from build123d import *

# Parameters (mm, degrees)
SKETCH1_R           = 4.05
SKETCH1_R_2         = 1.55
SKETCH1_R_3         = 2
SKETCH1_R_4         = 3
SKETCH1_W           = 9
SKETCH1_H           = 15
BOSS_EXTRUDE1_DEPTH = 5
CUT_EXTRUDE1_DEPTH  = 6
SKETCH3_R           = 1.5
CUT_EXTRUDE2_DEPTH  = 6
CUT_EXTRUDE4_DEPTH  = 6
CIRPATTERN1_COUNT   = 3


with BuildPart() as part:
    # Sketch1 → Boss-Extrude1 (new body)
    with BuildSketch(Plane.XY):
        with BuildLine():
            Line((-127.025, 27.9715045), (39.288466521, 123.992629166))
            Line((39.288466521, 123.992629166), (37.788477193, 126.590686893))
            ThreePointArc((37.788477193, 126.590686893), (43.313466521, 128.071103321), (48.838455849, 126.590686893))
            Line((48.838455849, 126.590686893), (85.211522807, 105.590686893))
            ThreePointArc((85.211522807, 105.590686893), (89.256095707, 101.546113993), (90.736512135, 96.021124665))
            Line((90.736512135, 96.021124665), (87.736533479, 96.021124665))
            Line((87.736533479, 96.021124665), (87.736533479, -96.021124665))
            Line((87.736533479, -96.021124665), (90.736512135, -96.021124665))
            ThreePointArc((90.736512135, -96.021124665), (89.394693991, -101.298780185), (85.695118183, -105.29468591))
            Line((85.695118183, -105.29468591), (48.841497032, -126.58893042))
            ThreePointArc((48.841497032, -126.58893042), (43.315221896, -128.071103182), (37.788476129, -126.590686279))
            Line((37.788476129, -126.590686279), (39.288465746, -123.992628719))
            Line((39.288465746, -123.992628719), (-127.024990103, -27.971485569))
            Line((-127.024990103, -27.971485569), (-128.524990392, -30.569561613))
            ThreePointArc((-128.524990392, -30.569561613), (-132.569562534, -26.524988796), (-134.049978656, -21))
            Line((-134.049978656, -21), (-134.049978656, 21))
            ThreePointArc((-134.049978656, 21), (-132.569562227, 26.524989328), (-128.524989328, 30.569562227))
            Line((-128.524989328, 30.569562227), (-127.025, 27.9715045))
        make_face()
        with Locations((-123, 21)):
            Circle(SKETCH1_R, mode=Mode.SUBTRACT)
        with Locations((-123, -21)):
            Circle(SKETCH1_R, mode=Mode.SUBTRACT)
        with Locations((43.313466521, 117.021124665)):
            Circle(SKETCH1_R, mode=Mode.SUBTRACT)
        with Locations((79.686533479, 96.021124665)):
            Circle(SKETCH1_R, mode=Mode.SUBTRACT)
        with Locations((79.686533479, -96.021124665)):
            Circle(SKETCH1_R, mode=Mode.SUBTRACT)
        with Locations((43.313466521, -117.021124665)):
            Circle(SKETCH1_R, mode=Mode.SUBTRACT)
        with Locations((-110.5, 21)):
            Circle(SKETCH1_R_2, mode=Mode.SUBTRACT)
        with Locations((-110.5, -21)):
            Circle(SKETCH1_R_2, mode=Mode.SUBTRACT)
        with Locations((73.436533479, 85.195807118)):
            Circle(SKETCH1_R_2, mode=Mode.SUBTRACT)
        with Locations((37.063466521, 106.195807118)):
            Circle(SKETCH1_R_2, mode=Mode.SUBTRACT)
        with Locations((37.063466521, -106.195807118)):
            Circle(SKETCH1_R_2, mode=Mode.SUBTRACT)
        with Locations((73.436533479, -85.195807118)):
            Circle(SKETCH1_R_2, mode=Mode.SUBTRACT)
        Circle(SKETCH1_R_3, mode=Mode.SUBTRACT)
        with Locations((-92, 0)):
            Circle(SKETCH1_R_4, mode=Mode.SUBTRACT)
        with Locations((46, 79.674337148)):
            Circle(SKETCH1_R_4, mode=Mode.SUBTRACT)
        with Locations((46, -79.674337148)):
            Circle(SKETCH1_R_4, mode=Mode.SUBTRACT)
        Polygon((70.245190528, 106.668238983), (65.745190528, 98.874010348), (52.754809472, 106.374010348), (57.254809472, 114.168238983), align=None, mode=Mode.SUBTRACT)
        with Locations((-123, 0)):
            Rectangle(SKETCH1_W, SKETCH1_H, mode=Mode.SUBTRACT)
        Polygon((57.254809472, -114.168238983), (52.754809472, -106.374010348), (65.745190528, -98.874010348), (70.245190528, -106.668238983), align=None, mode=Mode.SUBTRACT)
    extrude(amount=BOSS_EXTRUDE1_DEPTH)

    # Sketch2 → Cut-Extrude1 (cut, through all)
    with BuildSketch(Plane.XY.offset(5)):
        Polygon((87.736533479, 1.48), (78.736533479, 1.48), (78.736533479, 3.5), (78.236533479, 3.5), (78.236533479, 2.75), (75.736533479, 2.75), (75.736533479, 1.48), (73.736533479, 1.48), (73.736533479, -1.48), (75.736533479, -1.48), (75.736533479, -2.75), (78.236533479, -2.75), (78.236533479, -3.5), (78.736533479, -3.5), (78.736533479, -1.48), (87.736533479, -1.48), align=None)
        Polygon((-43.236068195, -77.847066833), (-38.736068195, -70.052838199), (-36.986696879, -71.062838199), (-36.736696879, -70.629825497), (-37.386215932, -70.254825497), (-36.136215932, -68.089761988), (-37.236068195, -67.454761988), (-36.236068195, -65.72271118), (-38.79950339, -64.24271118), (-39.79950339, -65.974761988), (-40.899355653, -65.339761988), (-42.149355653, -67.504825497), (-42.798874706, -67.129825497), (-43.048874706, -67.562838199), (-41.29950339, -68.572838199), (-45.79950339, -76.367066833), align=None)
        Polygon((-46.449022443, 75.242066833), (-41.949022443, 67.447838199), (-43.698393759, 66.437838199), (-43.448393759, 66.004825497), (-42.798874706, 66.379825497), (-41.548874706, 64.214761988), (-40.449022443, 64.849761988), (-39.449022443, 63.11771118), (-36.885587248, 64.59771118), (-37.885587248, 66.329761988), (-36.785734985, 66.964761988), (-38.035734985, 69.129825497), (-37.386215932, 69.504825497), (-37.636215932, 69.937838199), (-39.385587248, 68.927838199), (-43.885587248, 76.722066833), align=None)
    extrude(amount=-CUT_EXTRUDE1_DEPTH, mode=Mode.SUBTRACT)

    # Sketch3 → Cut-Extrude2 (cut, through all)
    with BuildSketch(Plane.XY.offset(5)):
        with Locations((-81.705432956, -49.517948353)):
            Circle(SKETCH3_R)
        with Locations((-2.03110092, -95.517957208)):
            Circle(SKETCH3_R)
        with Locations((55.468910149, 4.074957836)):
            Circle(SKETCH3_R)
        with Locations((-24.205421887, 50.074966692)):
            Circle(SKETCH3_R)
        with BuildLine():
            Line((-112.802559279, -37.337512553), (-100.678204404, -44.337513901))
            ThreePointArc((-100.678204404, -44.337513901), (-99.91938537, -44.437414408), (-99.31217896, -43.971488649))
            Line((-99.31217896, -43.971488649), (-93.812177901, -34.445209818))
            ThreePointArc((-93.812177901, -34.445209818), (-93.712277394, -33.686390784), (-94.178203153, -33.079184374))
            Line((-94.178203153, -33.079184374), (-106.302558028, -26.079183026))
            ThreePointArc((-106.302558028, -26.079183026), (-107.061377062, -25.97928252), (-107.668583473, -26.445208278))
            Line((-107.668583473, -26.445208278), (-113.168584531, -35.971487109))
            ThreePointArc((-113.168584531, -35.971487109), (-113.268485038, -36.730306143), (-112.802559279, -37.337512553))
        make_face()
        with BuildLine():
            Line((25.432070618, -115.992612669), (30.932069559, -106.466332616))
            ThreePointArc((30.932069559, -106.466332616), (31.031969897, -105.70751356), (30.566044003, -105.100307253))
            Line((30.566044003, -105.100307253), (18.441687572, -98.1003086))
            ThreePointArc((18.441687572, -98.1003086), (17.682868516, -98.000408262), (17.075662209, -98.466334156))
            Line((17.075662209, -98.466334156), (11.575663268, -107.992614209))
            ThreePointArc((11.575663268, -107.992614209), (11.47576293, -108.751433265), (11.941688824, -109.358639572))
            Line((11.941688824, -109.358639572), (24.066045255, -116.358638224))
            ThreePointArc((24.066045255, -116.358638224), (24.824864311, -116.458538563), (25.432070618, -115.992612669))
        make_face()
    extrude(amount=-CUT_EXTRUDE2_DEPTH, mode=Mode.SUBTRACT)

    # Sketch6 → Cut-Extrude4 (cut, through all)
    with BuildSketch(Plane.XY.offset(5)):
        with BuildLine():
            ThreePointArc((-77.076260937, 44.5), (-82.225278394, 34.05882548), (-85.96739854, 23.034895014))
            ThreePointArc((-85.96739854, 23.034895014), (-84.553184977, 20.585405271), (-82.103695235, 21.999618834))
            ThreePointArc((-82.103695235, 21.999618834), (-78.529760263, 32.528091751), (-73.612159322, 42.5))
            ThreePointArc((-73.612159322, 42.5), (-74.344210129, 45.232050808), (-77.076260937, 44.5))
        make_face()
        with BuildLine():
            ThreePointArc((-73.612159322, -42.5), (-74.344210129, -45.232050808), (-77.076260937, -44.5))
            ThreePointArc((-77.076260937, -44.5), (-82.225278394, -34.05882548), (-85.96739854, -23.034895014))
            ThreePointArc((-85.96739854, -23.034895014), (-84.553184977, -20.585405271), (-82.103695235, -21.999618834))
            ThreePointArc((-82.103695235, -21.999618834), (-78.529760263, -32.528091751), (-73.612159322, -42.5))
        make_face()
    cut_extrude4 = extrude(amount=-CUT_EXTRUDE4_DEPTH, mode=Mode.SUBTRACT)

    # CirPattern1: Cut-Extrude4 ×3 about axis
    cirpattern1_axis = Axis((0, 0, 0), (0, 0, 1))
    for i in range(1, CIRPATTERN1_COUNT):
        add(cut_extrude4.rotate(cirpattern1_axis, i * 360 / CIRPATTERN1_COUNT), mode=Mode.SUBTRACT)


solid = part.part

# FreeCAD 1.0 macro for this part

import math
import FreeCAD as App
import Part
import Sketcher
from FreeCAD import Vector
Q = App.Units.Quantity

doc = App.newDocument("Part")
body = doc.addObject("PartDesign::Body", "Body")

# Sketch on XY plane
sketch1 = body.newObject("Sketcher::SketchObject", "Sketch")
sketch1.AttachmentSupport = (doc.getObject("XY_Plane"), [""])
sketch1.MapMode = "FlatFace"
sketch1.addGeometry(Part.LineSegment(Vector(39.288467, 123.992629, 0), Vector(-127.025, 27.971505, 0)), False)
sketch1.addGeometry(Part.LineSegment(Vector(-127.025, 27.971505, 0), Vector(-128.524989, 30.569562, 0)), False)
sketch1.addGeometry(Part.ArcOfCircle(Part.Circle(Vector(-123, 21, 0), Vector(0, 0, 1), 11.049979), math.radians(120), math.radians(180)), False)
sketch1.addGeometry(Part.LineSegment(Vector(-134.049979, 21, 0), Vector(-134.049979, -21, 0)), False)
sketch1.addGeometry(Part.ArcOfCircle(Part.Circle(Vector(-123, -21, 0), Vector(0, 0, 1), 11.049979), math.radians(-180), math.radians(-120.000006)), False)
sketch1.addGeometry(Part.LineSegment(Vector(-128.52499, -30.569562, 0), Vector(-127.02499, -27.971486, 0)), False)
sketch1.addGeometry(Part.LineSegment(Vector(-127.02499, -27.971486, 0), Vector(39.288466, -123.992629, 0)), False)
sketch1.addGeometry(Part.LineSegment(Vector(39.288466, -123.992629, 0), Vector(37.788476, -126.590686, 0)), False)
sketch1.addGeometry(Part.ArcOfCircle(Part.Circle(Vector(43.313467, -117.021125, 0), Vector(0, 0, 1), 11.049979), math.radians(-120.000006), math.radians(-59.98179)), False)
sketch1.addGeometry(Part.LineSegment(Vector(48.841497, -126.58893, 0), Vector(85.695118, -105.294686, 0)), False)
sketch1.addGeometry(Part.ArcOfCircle(Part.Circle(Vector(79.686533, -96.021125, 0), Vector(0, 0, 1), 11.049979), math.radians(-57.059734), math.radians(0)), False)
sketch1.addGeometry(Part.LineSegment(Vector(90.736512, -96.021125, 0), Vector(87.736533, -96.021125, 0)), False)
sketch1.addGeometry(Part.LineSegment(Vector(87.736533, -96.021125, 0), Vector(87.736533, 96.021125, 0)), False)
sketch1.addGeometry(Part.LineSegment(Vector(87.736533, 96.021125, 0), Vector(90.736512, 96.021125, 0)), False)
sketch1.addGeometry(Part.ArcOfCircle(Part.Circle(Vector(79.686533, 96.021125, 0), Vector(0, 0, 1), 11.049979), math.radians(0), math.radians(60)), False)
sketch1.addGeometry(Part.LineSegment(Vector(85.211523, 105.590687, 0), Vector(48.838456, 126.590687, 0)), False)
sketch1.addGeometry(Part.ArcOfCircle(Part.Circle(Vector(43.313467, 117.021125, 0), Vector(0, 0, 1), 11.049979), math.radians(60), math.radians(120)), False)
sketch1.addGeometry(Part.LineSegment(Vector(37.788477, 126.590687, 0), Vector(39.288467, 123.992629, 0)), False)
sketch1.addGeometry(Part.LineSegment(Vector(57.254809, -114.168239, 0), Vector(52.754809, -106.37401, 0)), False)
sketch1.addGeometry(Part.LineSegment(Vector(52.754809, -106.37401, 0), Vector(65.745191, -98.87401, 0)), False)
sketch1.addGeometry(Part.LineSegment(Vector(65.745191, -98.87401, 0), Vector(70.245191, -106.668239, 0)), False)
sketch1.addGeometry(Part.LineSegment(Vector(70.245191, -106.668239, 0), Vector(57.254809, -114.168239, 0)), False)
sketch1.addGeometry(Part.Circle(Vector(79.686533, -96.021125, 0), Vector(0, 0, 1), 4.05), False)
sketch1.addGeometry(Part.Circle(Vector(43.313467, -117.021125, 0), Vector(0, 0, 1), 4.05), False)
sketch1.addGeometry(Part.Circle(Vector(37.063467, -106.195807, 0), Vector(0, 0, 1), 1.55), False)
sketch1.addGeometry(Part.Circle(Vector(73.436533, -85.195807, 0), Vector(0, 0, 1), 1.55), False)
sketch1.addGeometry(Part.Circle(Vector(46, -79.674337, 0), Vector(0, 0, 1), 3), False)
sketch1.addGeometry(Part.Circle(Vector(0, 0, 0), Vector(0, 0, 1), 2), False)
sketch1.addGeometry(Part.Circle(Vector(-92, 0, 0), Vector(0, 0, 1), 3), False)
sketch1.addGeometry(Part.Circle(Vector(-110.5, -21, 0), Vector(0, 0, 1), 1.55), False)
sketch1.addGeometry(Part.Circle(Vector(-123, -21, 0), Vector(0, 0, 1), 4.05), False)
sketch1.addGeometry(Part.LineSegment(Vector(-127.5, -7.5, 0), Vector(-127.5, 7.5, 0)), False)
sketch1.addGeometry(Part.LineSegment(Vector(-127.5, 7.5, 0), Vector(-118.5, 7.5, 0)), False)
sketch1.addGeometry(Part.LineSegment(Vector(-118.5, 7.5, 0), Vector(-118.5, -7.5, 0)), False)
sketch1.addGeometry(Part.LineSegment(Vector(-118.5, -7.5, 0), Vector(-127.5, -7.5, 0)), False)
sketch1.addGeometry(Part.Circle(Vector(73.436533, 85.195807, 0), Vector(0, 0, 1), 1.55), False)
sketch1.addGeometry(Part.Circle(Vector(46, 79.674337, 0), Vector(0, 0, 1), 3), False)
sketch1.addGeometry(Part.Circle(Vector(79.686533, 96.021125, 0), Vector(0, 0, 1), 4.05), False)
sketch1.addGeometry(Part.LineSegment(Vector(70.245191, 106.668239, 0), Vector(65.745191, 98.87401, 0)), False)
sketch1.addGeometry(Part.LineSegment(Vector(65.745191, 98.87401, 0), Vector(52.754809, 106.37401, 0)), False)
sketch1.addGeometry(Part.LineSegment(Vector(52.754809, 106.37401, 0), Vector(57.254809, 114.168239, 0)), False)
sketch1.addGeometry(Part.LineSegment(Vector(57.254809, 114.168239, 0), Vector(70.245191, 106.668239, 0)), False)
sketch1.addGeometry(Part.Circle(Vector(37.063467, 106.195807, 0), Vector(0, 0, 1), 1.55), False)
sketch1.addGeometry(Part.Circle(Vector(43.313467, 117.021125, 0), Vector(0, 0, 1), 4.05), False)
sketch1.addGeometry(Part.Circle(Vector(-110.5, 21, 0), Vector(0, 0, 1), 1.55), False)
sketch1.addGeometry(Part.Circle(Vector(-123, 21, 0), Vector(0, 0, 1), 4.05), False)
sketch1.addConstraint(Sketcher.Constraint("Coincident", 0, 2, 1, 1))
sketch1.addConstraint(Sketcher.Constraint("Coincident", 1, 2, 2, 1))
sketch1.addConstraint(Sketcher.Constraint("Coincident", 2, 2, 3, 1))
sketch1.addConstraint(Sketcher.Constraint("Coincident", 3, 2, 4, 1))
sketch1.addConstraint(Sketcher.Constraint("Coincident", 4, 2, 5, 1))
sketch1.addConstraint(Sketcher.Constraint("Coincident", 5, 2, 6, 1))
sketch1.addConstraint(Sketcher.Constraint("Coincident", 6, 2, 7, 1))
sketch1.addConstraint(Sketcher.Constraint("Coincident", 7, 2, 8, 1))
sketch1.addConstraint(Sketcher.Constraint("Coincident", 8, 2, 9, 1))
sketch1.addConstraint(Sketcher.Constraint("Coincident", 9, 2, 10, 1))
sketch1.addConstraint(Sketcher.Constraint("Coincident", 10, 2, 11, 1))
sketch1.addConstraint(Sketcher.Constraint("Coincident", 11, 2, 12, 1))
sketch1.addConstraint(Sketcher.Constraint("Coincident", 12, 2, 13, 1))
sketch1.addConstraint(Sketcher.Constraint("Coincident", 13, 2, 14, 1))
sketch1.addConstraint(Sketcher.Constraint("Coincident", 14, 2, 15, 1))
sketch1.addConstraint(Sketcher.Constraint("Coincident", 15, 2, 16, 1))
sketch1.addConstraint(Sketcher.Constraint("Coincident", 16, 2, 17, 1))
sketch1.addConstraint(Sketcher.Constraint("Coincident", 17, 2, 0, 1))
sketch1.addConstraint(Sketcher.Constraint("Coincident", 18, 2, 19, 1))
sketch1.addConstraint(Sketcher.Constraint("Coincident", 19, 2, 20, 1))
sketch1.addConstraint(Sketcher.Constraint("Coincident", 20, 2, 21, 1))
sketch1.addConstraint(Sketcher.Constraint("Coincident", 21, 2, 18, 1))
sketch1.addConstraint(Sketcher.Constraint("Coincident", 31, 2, 32, 1))
sketch1.addConstraint(Sketcher.Constraint("Coincident", 32, 2, 33, 1))
sketch1.addConstraint(Sketcher.Constraint("Coincident", 33, 2, 34, 1))
sketch1.addConstraint(Sketcher.Constraint("Coincident", 34, 2, 31, 1))
sketch1.addConstraint(Sketcher.Constraint("Coincident", 38, 2, 39, 1))
sketch1.addConstraint(Sketcher.Constraint("Coincident", 39, 2, 40, 1))
sketch1.addConstraint(Sketcher.Constraint("Coincident", 40, 2, 41, 1))
sketch1.addConstraint(Sketcher.Constraint("Coincident", 41, 2, 38, 1))
sketch1.addConstraint(Sketcher.Constraint("Vertical", 3))
sketch1.addConstraint(Sketcher.Constraint("Horizontal", 11))
sketch1.addConstraint(Sketcher.Constraint("Vertical", 12))
sketch1.addConstraint(Sketcher.Constraint("Horizontal", 13))
sketch1.addConstraint(Sketcher.Constraint("Vertical", 31))
sketch1.addConstraint(Sketcher.Constraint("Horizontal", 32))
sketch1.addConstraint(Sketcher.Constraint("Vertical", 33))
sketch1.addConstraint(Sketcher.Constraint("Horizontal", 34))
sketch1.addConstraint(Sketcher.Constraint("Coincident", 27, 3, -1, 1))
sketch1.addConstraint(Sketcher.Constraint("Coincident", 22, 3, 10, 3))
sketch1.addConstraint(Sketcher.Constraint("Coincident", 23, 3, 8, 3))
sketch1.addConstraint(Sketcher.Constraint("Coincident", 30, 3, 4, 3))
sketch1.addConstraint(Sketcher.Constraint("Coincident", 37, 3, 14, 3))
sketch1.addConstraint(Sketcher.Constraint("Coincident", 43, 3, 16, 3))
sketch1.addConstraint(Sketcher.Constraint("Coincident", 45, 3, 2, 3))
sketch1.addConstraint(Sketcher.Constraint("PointOnObject", 28, 3, -1))
sketch1.addConstraint(Sketcher.Constraint("Diameter", 26, 6.0))
sketch1.addConstraint(Sketcher.Constraint("Diameter", 27, 4.0))
sketch1.addConstraint(Sketcher.Constraint("Diameter", 28, 6.0))
sketch1.addConstraint(Sketcher.Constraint("Diameter", 36, 6.0))
sketch1.addConstraint(Sketcher.Constraint("Diameter", 22, 8.1))
sketch1.addConstraint(Sketcher.Constraint("Diameter", 23, 8.1))
sketch1.addConstraint(Sketcher.Constraint("Diameter", 24, 3.1))
sketch1.addConstraint(Sketcher.Constraint("Diameter", 25, 3.1))
sketch1.addConstraint(Sketcher.Constraint("Diameter", 29, 3.1))
sketch1.addConstraint(Sketcher.Constraint("Diameter", 30, 8.1))
sketch1.addConstraint(Sketcher.Constraint("Diameter", 35, 3.1))
sketch1.addConstraint(Sketcher.Constraint("Diameter", 37, 8.1))
sketch1.addConstraint(Sketcher.Constraint("Diameter", 42, 3.1))
sketch1.addConstraint(Sketcher.Constraint("Diameter", 43, 8.1))
sketch1.addConstraint(Sketcher.Constraint("Diameter", 44, 3.1))
sketch1.addConstraint(Sketcher.Constraint("Diameter", 45, 8.1))
sketch1.addConstraint(Sketcher.Constraint("DistanceX", 32, 1, 32, 2, 9.0))
sketch1.addConstraint(Sketcher.Constraint("DistanceY", 3, 2, 3, 1, 42.0))
sketch1.addConstraint(Sketcher.Constraint("DistanceY", 31, 1, 31, 2, 15.0))
sketch1.addConstraint(Sketcher.Constraint("Distance", 5, 3.0))
sketch1.addConstraint(Sketcher.Constraint("Distance", 15, 42.0))
sketch1.addConstraint(Sketcher.Constraint("Distance", 18, 9.0))
sketch1.addConstraint(Sketcher.Constraint("Distance", 19, 15.0))
sketch1.addConstraint(Sketcher.Constraint("Distance", 20, 9.0))
sketch1.addConstraint(Sketcher.Constraint("Distance", 21, 15.0))
sketch1.addConstraint(Sketcher.Constraint("Distance", 38, 9.0))
sketch1.addConstraint(Sketcher.Constraint("Distance", 39, 15.0))
sketch1.addConstraint(Sketcher.Constraint("Distance", 40, 9.0))
sketch1.addConstraint(Sketcher.Constraint("Distance", 41, 15.0))
sketch1.addConstraint(Sketcher.Constraint("DistanceX", 2, 3, -1, 1, 123.0))
sketch1.addConstraint(Sketcher.Constraint("DistanceY", -1, 1, 2, 3, 21.0))
sketch1.addConstraint(Sketcher.Constraint("DistanceX", 4, 3, -1, 1, 123.0))
sketch1.addConstraint(Sketcher.Constraint("DistanceY", 4, 3, -1, 1, 21.0))
sketch1.addConstraint(Sketcher.Constraint("DistanceX", -1, 1, 26, 3, 46.0))
sketch1.addConstraint(Sketcher.Constraint("DistanceX", 28, 3, -1, 1, 92.0))
sketch1.addConstraint(Sketcher.Constraint("DistanceY", 29, 3, -1, 1, 21.0))
sketch1.addConstraint(Sketcher.Constraint("DistanceX", -1, 1, 36, 3, 46.0))
sketch1.addConstraint(Sketcher.Constraint("DistanceY", -1, 1, 44, 3, 21.0))
sketch1.addConstraint(Sketcher.Constraint("DistanceY", -1, 1, 2, 2, 21.0))
sketch1.addConstraint(Sketcher.Constraint("DistanceY", 8, 3, 10, 3, 21.0))
sketch1.addConstraint(Sketcher.Constraint("DistanceY", 14, 3, 16, 3, 21.0))
sketch1.addConstraint(Sketcher.Constraint("DistanceY", 24, 3, 25, 3, 21.0))
sketch1.addConstraint(Sketcher.Constraint("DistanceY", 35, 3, 42, 3, 21.0))
sketch1.addConstraint(Sketcher.Constraint("DistanceY", 12, 2, 16, 3, 21.0))
sketch1.addConstraint(Sketcher.Constraint("DistanceY", 14, 2, 15, 2, 21.0))
sketch1.addConstraint(Sketcher.Constraint("DistanceX", 31, 2, 44, 3, 17.0))
sketch1.addConstraint(Sketcher.Constraint("DistanceX", 33, 2, 29, 3, 8.0))
sketch1.addConstraint(Sketcher.Constraint("DistanceX", 29, 3, -1, 1, 110.5))
sketch1.addConstraint(Sketcher.Constraint("DistanceY", -1, 1, 31, 2, 7.5))
sketch1.addConstraint(Sketcher.Constraint("DistanceX", 4, 2, 5, 2, 1.5))
sketch1.addConstraint(Sketcher.Constraint("DistanceX", 25, 3, 11, 2, 14.3))
sketch1.addConstraint(Sketcher.Constraint("DistanceX", 35, 3, 12, 2, 14.3))
sketch1.addConstraint(Sketcher.Constraint("DistanceY", 18, 2, 19, 2, 7.5))
sketch1.addConstraint(Sketcher.Constraint("DistanceX", 19, 2, 20, 2, 4.5))
sketch1.addConstraint(Sketcher.Constraint("DistanceY", 38, 2, 39, 2, 7.5))
sketch1.addConstraint(Sketcher.Constraint("DistanceX", 39, 2, 40, 2, 4.5))
sketch1.addConstraint(Sketcher.Constraint("Radius", 2, 11.049979))
sketch1.addConstraint(Sketcher.Constraint("Radius", 8, 11.049979))
sketch1.addConstraint(Sketcher.Constraint("Radius", 10, 11.049979))
sketch1.addConstraint(Sketcher.Constraint("Radius", 14, 11.049979))
sketch1.addConstraint(Sketcher.Constraint("Radius", 16, 11.049979))
sketch1.addConstraint(Sketcher.Constraint("DistanceX", 24, 3, 23, 3, 6.25))
sketch1.addConstraint(Sketcher.Constraint("DistanceX", 25, 3, 22, 3, 6.25))
sketch1.addConstraint(Sketcher.Constraint("DistanceX", 35, 3, 14, 3, 6.25))
sketch1.addConstraint(Sketcher.Constraint("DistanceX", 42, 3, 16, 3, 6.25))
sketch1.addConstraint(Sketcher.Constraint("DistanceX", 0, 2, -1, 1, 127.025))
sketch1.addConstraint(Sketcher.Constraint("DistanceX", 6, 2, 8, 3, 4.025001))
sketch1.addConstraint(Sketcher.Constraint("DistanceX", 17, 2, 43, 3, 4.025))
sketch1.addConstraint(Sketcher.Constraint("DistanceY", 12, 1, 12, 2, 192.042249))
sketch1.addConstraint(Sketcher.Constraint("DistanceY", 8, 2, 6, 2, 2.596302))
sketch1.addConstraint(Sketcher.Constraint("Distance", 0, 192.042249))
sketch1.addConstraint(Sketcher.Constraint("Distance", 1, 2.999979))
sketch1.addConstraint(Sketcher.Constraint("Distance", 6, 192.042249))
sketch1.addConstraint(Sketcher.Constraint("Distance", 7, 2.999979))
sketch1.addConstraint(Sketcher.Constraint("Distance", 17, 2.999979))
sketch1.addConstraint(Sketcher.Constraint("DistanceX", 1, 2, -1, 1, 128.524989))
sketch1.addConstraint(Sketcher.Constraint("DistanceX", 4, 2, -1, 1, 128.52499))
sketch1.addConstraint(Sketcher.Constraint("DistanceY", 6, 2, -1, 1, 123.992629))
sketch1.addConstraint(Sketcher.Constraint("DistanceX", -1, 1, 9, 2, 85.695118))
sketch1.addConstraint(Sketcher.Constraint("DistanceY", -1, 1, 17, 2, 123.992629))
sketch1.addConstraint(Sketcher.Constraint("DistanceX", -1, 1, 18, 2, 52.754809))
sketch1.addConstraint(Sketcher.Constraint("DistanceY", 18, 2, -1, 1, 106.37401))
sketch1.addConstraint(Sketcher.Constraint("DistanceX", -1, 1, 38, 2, 65.745191))
sketch1.addConstraint(Sketcher.Constraint("DistanceY", -1, 1, 38, 2, 98.87401))
sketch1.addConstraint(Sketcher.Constraint("DistanceY", 25, 3, 26, 3, 5.52147))
sketch1.addConstraint(Sketcher.Constraint("DistanceY", 36, 3, 35, 3, 5.52147))
sketch1.addConstraint(Sketcher.Constraint("DistanceY", 6, 2, 24, 3, 17.796822))
sketch1.addConstraint(Sketcher.Constraint("DistanceX", 7, 2, 6, 2, 1.49999))
sketch1.addConstraint(Sketcher.Constraint("DistanceX", 14, 2, 12, 2, 2.525011))
sketch1.addConstraint(Sketcher.Constraint("DistanceY", 35, 3, 14, 2, 20.39488))
sketch1.addConstraint(Sketcher.Constraint("DistanceX", 16, 2, 15, 2, 11.049979))
pad1 = body.newObject("PartDesign::Pad", "Pad")
pad1.Profile = sketch1
pad1.Length = 5

# Sketch on XY plane
sketch2 = body.newObject("Sketcher::SketchObject", "Sketch001")
sketch2.AttachmentSupport = (doc.getObject("XY_Plane"), [""])
sketch2.MapMode = "FlatFace"
sketch2.AttachmentOffset = App.Placement(Vector(0, 0, 5), App.Rotation())
sketch2.addGeometry(Part.LineSegment(Vector(87.7, 1.5, 0), Vector(78.7, 1.5, 0)), False)
sketch2.addGeometry(Part.LineSegment(Vector(78.7, 1.5, 0), Vector(78.7, 3.5, 0)), False)
sketch2.addGeometry(Part.LineSegment(Vector(78.7, 3.5, 0), Vector(78.2, 3.5, 0)), False)
sketch2.addGeometry(Part.LineSegment(Vector(78.2, 3.5, 0), Vector(78.2, 2.8, 0)), False)
sketch2.addGeometry(Part.LineSegment(Vector(78.2, 2.8, 0), Vector(75.7, 2.8, 0)), False)
sketch2.addGeometry(Part.LineSegment(Vector(75.7, 2.8, 0), Vector(75.7, 1.5, 0)), False)
sketch2.addGeometry(Part.LineSegment(Vector(75.7, 1.5, 0), Vector(73.7, 1.5, 0)), False)
sketch2.addGeometry(Part.LineSegment(Vector(73.7, 1.5, 0), Vector(73.7, -1.5, 0)), False)
sketch2.addGeometry(Part.LineSegment(Vector(73.7, -1.5, 0), Vector(75.7, -1.5, 0)), False)
sketch2.addGeometry(Part.LineSegment(Vector(75.7, -1.5, 0), Vector(75.7, -2.8, 0)), False)
sketch2.addGeometry(Part.LineSegment(Vector(75.7, -2.8, 0), Vector(78.2, -2.8, 0)), False)
sketch2.addGeometry(Part.LineSegment(Vector(78.2, -2.8, 0), Vector(78.2, -3.5, 0)), False)
sketch2.addGeometry(Part.LineSegment(Vector(78.2, -3.5, 0), Vector(78.7, -3.5, 0)), False)
sketch2.addGeometry(Part.LineSegment(Vector(78.7, -3.5, 0), Vector(78.7, -1.5, 0)), False)
sketch2.addGeometry(Part.LineSegment(Vector(78.7, -1.5, 0), Vector(87.7, -1.5, 0)), False)
sketch2.addGeometry(Part.LineSegment(Vector(87.7, -1.5, 0), Vector(87.7, 1.5, 0)), False)
sketch2.addGeometry(Part.LineSegment(Vector(-43.2, -77.8, 0), Vector(-38.7, -70.1, 0)), False)
sketch2.addGeometry(Part.LineSegment(Vector(-38.7, -70.1, 0), Vector(-37, -71.1, 0)), False)
sketch2.addGeometry(Part.LineSegment(Vector(-37, -71.1, 0), Vector(-36.7, -70.6, 0)), False)
sketch2.addGeometry(Part.LineSegment(Vector(-36.7, -70.6, 0), Vector(-37.4, -70.3, 0)), False)
sketch2.addGeometry(Part.LineSegment(Vector(-37.4, -70.3, 0), Vector(-36.1, -68.1, 0)), False)
sketch2.addGeometry(Part.LineSegment(Vector(-36.1, -68.1, 0), Vector(-37.2, -67.5, 0)), False)
sketch2.addGeometry(Part.LineSegment(Vector(-37.2, -67.5, 0), Vector(-36.2, -65.7, 0)), False)
sketch2.addGeometry(Part.LineSegment(Vector(-36.2, -65.7, 0), Vector(-38.8, -64.2, 0)), False)
sketch2.addGeometry(Part.LineSegment(Vector(-38.8, -64.2, 0), Vector(-39.8, -66, 0)), False)
sketch2.addGeometry(Part.LineSegment(Vector(-39.8, -66, 0), Vector(-40.9, -65.3, 0)), False)
sketch2.addGeometry(Part.LineSegment(Vector(-40.9, -65.3, 0), Vector(-42.1, -67.5, 0)), False)
sketch2.addGeometry(Part.LineSegment(Vector(-42.1, -67.5, 0), Vector(-42.8, -67.1, 0)), False)
sketch2.addGeometry(Part.LineSegment(Vector(-42.8, -67.1, 0), Vector(-43, -67.6, 0)), False)
sketch2.addGeometry(Part.LineSegment(Vector(-43, -67.6, 0), Vector(-41.3, -68.6, 0)), False)
sketch2.addGeometry(Part.LineSegment(Vector(-41.3, -68.6, 0), Vector(-45.8, -76.4, 0)), False)
sketch2.addGeometry(Part.LineSegment(Vector(-45.8, -76.4, 0), Vector(-43.2, -77.8, 0)), False)
sketch2.addGeometry(Part.LineSegment(Vector(-46.4, 75.2, 0), Vector(-41.9, 67.4, 0)), False)
sketch2.addGeometry(Part.LineSegment(Vector(-41.9, 67.4, 0), Vector(-43.7, 66.4, 0)), False)
sketch2.addGeometry(Part.LineSegment(Vector(-43.7, 66.4, 0), Vector(-43.4, 66, 0)), False)
sketch2.addGeometry(Part.LineSegment(Vector(-43.4, 66, 0), Vector(-42.8, 66.4, 0)), False)
sketch2.addGeometry(Part.LineSegment(Vector(-42.8, 66.4, 0), Vector(-41.5, 64.2, 0)), False)
sketch2.addGeometry(Part.LineSegment(Vector(-41.5, 64.2, 0), Vector(-40.4, 64.8, 0)), False)
sketch2.addGeometry(Part.LineSegment(Vector(-40.4, 64.8, 0), Vector(-39.4, 63.1, 0)), False)
sketch2.addGeometry(Part.LineSegment(Vector(-39.4, 63.1, 0), Vector(-36.9, 64.6, 0)), False)
sketch2.addGeometry(Part.LineSegment(Vector(-36.9, 64.6, 0), Vector(-37.9, 66.3, 0)), False)
sketch2.addGeometry(Part.LineSegment(Vector(-37.9, 66.3, 0), Vector(-36.8, 67, 0)), False)
sketch2.addGeometry(Part.LineSegment(Vector(-36.8, 67, 0), Vector(-38, 69.1, 0)), False)
sketch2.addGeometry(Part.LineSegment(Vector(-38, 69.1, 0), Vector(-37.4, 69.5, 0)), False)
sketch2.addGeometry(Part.LineSegment(Vector(-37.4, 69.5, 0), Vector(-37.6, 69.9, 0)), False)
sketch2.addGeometry(Part.LineSegment(Vector(-37.6, 69.9, 0), Vector(-39.4, 68.9, 0)), False)
sketch2.addGeometry(Part.LineSegment(Vector(-39.4, 68.9, 0), Vector(-43.9, 76.7, 0)), False)
sketch2.addGeometry(Part.LineSegment(Vector(-43.9, 76.7, 0), Vector(-46.4, 75.2, 0)), False)
sketch2.addConstraint(Sketcher.Constraint("Coincident", 0, 2, 1, 1))
sketch2.addConstraint(Sketcher.Constraint("Coincident", 1, 2, 2, 1))
sketch2.addConstraint(Sketcher.Constraint("Coincident", 2, 2, 3, 1))
sketch2.addConstraint(Sketcher.Constraint("Coincident", 3, 2, 4, 1))
sketch2.addConstraint(Sketcher.Constraint("Coincident", 4, 2, 5, 1))
sketch2.addConstraint(Sketcher.Constraint("Coincident", 5, 2, 6, 1))
sketch2.addConstraint(Sketcher.Constraint("Coincident", 6, 2, 7, 1))
sketch2.addConstraint(Sketcher.Constraint("Coincident", 7, 2, 8, 1))
sketch2.addConstraint(Sketcher.Constraint("Coincident", 8, 2, 9, 1))
sketch2.addConstraint(Sketcher.Constraint("Coincident", 9, 2, 10, 1))
sketch2.addConstraint(Sketcher.Constraint("Coincident", 10, 2, 11, 1))
sketch2.addConstraint(Sketcher.Constraint("Coincident", 11, 2, 12, 1))
sketch2.addConstraint(Sketcher.Constraint("Coincident", 12, 2, 13, 1))
sketch2.addConstraint(Sketcher.Constraint("Coincident", 13, 2, 14, 1))
sketch2.addConstraint(Sketcher.Constraint("Coincident", 14, 2, 15, 1))
sketch2.addConstraint(Sketcher.Constraint("Coincident", 15, 2, 0, 1))
sketch2.addConstraint(Sketcher.Constraint("Coincident", 16, 2, 17, 1))
sketch2.addConstraint(Sketcher.Constraint("Coincident", 17, 2, 18, 1))
sketch2.addConstraint(Sketcher.Constraint("Coincident", 18, 2, 19, 1))
sketch2.addConstraint(Sketcher.Constraint("Coincident", 19, 2, 20, 1))
sketch2.addConstraint(Sketcher.Constraint("Coincident", 20, 2, 21, 1))
sketch2.addConstraint(Sketcher.Constraint("Coincident", 21, 2, 22, 1))
sketch2.addConstraint(Sketcher.Constraint("Coincident", 22, 2, 23, 1))
sketch2.addConstraint(Sketcher.Constraint("Coincident", 23, 2, 24, 1))
sketch2.addConstraint(Sketcher.Constraint("Coincident", 24, 2, 25, 1))
sketch2.addConstraint(Sketcher.Constraint("Coincident", 25, 2, 26, 1))
sketch2.addConstraint(Sketcher.Constraint("Coincident", 26, 2, 27, 1))
sketch2.addConstraint(Sketcher.Constraint("Coincident", 27, 2, 28, 1))
sketch2.addConstraint(Sketcher.Constraint("Coincident", 28, 2, 29, 1))
sketch2.addConstraint(Sketcher.Constraint("Coincident", 29, 2, 30, 1))
sketch2.addConstraint(Sketcher.Constraint("Coincident", 30, 2, 31, 1))
sketch2.addConstraint(Sketcher.Constraint("Coincident", 31, 2, 16, 1))
sketch2.addConstraint(Sketcher.Constraint("Coincident", 32, 2, 33, 1))
sketch2.addConstraint(Sketcher.Constraint("Coincident", 33, 2, 34, 1))
sketch2.addConstraint(Sketcher.Constraint("Coincident", 34, 2, 35, 1))
sketch2.addConstraint(Sketcher.Constraint("Coincident", 35, 2, 36, 1))
sketch2.addConstraint(Sketcher.Constraint("Coincident", 36, 2, 37, 1))
sketch2.addConstraint(Sketcher.Constraint("Coincident", 37, 2, 38, 1))
sketch2.addConstraint(Sketcher.Constraint("Coincident", 38, 2, 39, 1))
sketch2.addConstraint(Sketcher.Constraint("Coincident", 39, 2, 40, 1))
sketch2.addConstraint(Sketcher.Constraint("Coincident", 40, 2, 41, 1))
sketch2.addConstraint(Sketcher.Constraint("Coincident", 41, 2, 42, 1))
sketch2.addConstraint(Sketcher.Constraint("Coincident", 42, 2, 43, 1))
sketch2.addConstraint(Sketcher.Constraint("Coincident", 43, 2, 44, 1))
sketch2.addConstraint(Sketcher.Constraint("Coincident", 44, 2, 45, 1))
sketch2.addConstraint(Sketcher.Constraint("Coincident", 45, 2, 46, 1))
sketch2.addConstraint(Sketcher.Constraint("Coincident", 46, 2, 47, 1))
sketch2.addConstraint(Sketcher.Constraint("Coincident", 47, 2, 32, 1))
sketch2.addConstraint(Sketcher.Constraint("Horizontal", 0))
sketch2.addConstraint(Sketcher.Constraint("Vertical", 1))
sketch2.addConstraint(Sketcher.Constraint("Horizontal", 2))
sketch2.addConstraint(Sketcher.Constraint("Vertical", 3))
sketch2.addConstraint(Sketcher.Constraint("Horizontal", 4))
sketch2.addConstraint(Sketcher.Constraint("Vertical", 5))
sketch2.addConstraint(Sketcher.Constraint("Horizontal", 6))
sketch2.addConstraint(Sketcher.Constraint("Vertical", 7))
sketch2.addConstraint(Sketcher.Constraint("Horizontal", 8))
sketch2.addConstraint(Sketcher.Constraint("Vertical", 9))
sketch2.addConstraint(Sketcher.Constraint("Horizontal", 10))
sketch2.addConstraint(Sketcher.Constraint("Vertical", 11))
sketch2.addConstraint(Sketcher.Constraint("Horizontal", 12))
sketch2.addConstraint(Sketcher.Constraint("Vertical", 13))
sketch2.addConstraint(Sketcher.Constraint("Horizontal", 14))
sketch2.addConstraint(Sketcher.Constraint("Vertical", 15))
sketch2.addConstraint(Sketcher.Constraint("Symmetric", 5, 2, 8, 2, -1))
sketch2.addConstraint(Sketcher.Constraint("Symmetric", 3, 2, 10, 2, -1))
sketch2.addConstraint(Sketcher.Constraint("Symmetric", 1, 2, 12, 2, -1))
sketch2.addConstraint(Sketcher.Constraint("Perpendicular", 16, 17))
sketch2.addConstraint(Sketcher.Constraint("Perpendicular", 17, 18))
sketch2.addConstraint(Sketcher.Constraint("Perpendicular", 18, 19))
sketch2.addConstraint(Sketcher.Constraint("Perpendicular", 19, 20))
sketch2.addConstraint(Sketcher.Constraint("Perpendicular", 20, 21))
sketch2.addConstraint(Sketcher.Constraint("Perpendicular", 21, 22))
sketch2.addConstraint(Sketcher.Constraint("Perpendicular", 22, 23))
sketch2.addConstraint(Sketcher.Constraint("Perpendicular", 23, 24))
sketch2.addConstraint(Sketcher.Constraint("Perpendicular", 24, 25))
sketch2.addConstraint(Sketcher.Constraint("Perpendicular", 25, 26))
sketch2.addConstraint(Sketcher.Constraint("Perpendicular", 26, 27))
sketch2.addConstraint(Sketcher.Constraint("Perpendicular", 27, 28))
sketch2.addConstraint(Sketcher.Constraint("Perpendicular", 28, 29))
sketch2.addConstraint(Sketcher.Constraint("Perpendicular", 29, 30))
sketch2.addConstraint(Sketcher.Constraint("Perpendicular", 30, 31))
sketch2.addConstraint(Sketcher.Constraint("Perpendicular", 32, 33))
sketch2.addConstraint(Sketcher.Constraint("Perpendicular", 33, 34))
sketch2.addConstraint(Sketcher.Constraint("Perpendicular", 34, 35))
sketch2.addConstraint(Sketcher.Constraint("Perpendicular", 35, 36))
sketch2.addConstraint(Sketcher.Constraint("Perpendicular", 36, 37))
sketch2.addConstraint(Sketcher.Constraint("Perpendicular", 37, 38))
sketch2.addConstraint(Sketcher.Constraint("Perpendicular", 38, 39))
sketch2.addConstraint(Sketcher.Constraint("Perpendicular", 39, 40))
sketch2.addConstraint(Sketcher.Constraint("Perpendicular", 40, 41))
sketch2.addConstraint(Sketcher.Constraint("Perpendicular", 41, 42))
sketch2.addConstraint(Sketcher.Constraint("Perpendicular", 42, 43))
sketch2.addConstraint(Sketcher.Constraint("Perpendicular", 43, 44))
sketch2.addConstraint(Sketcher.Constraint("Perpendicular", 44, 45))
sketch2.addConstraint(Sketcher.Constraint("Perpendicular", 45, 46))
sketch2.addConstraint(Sketcher.Constraint("Perpendicular", 46, 47))
sketch2.addConstraint(Sketcher.Constraint("Horizontal", 0, 2, 5, 2))
sketch2.addConstraint(Sketcher.Constraint("Horizontal", 8, 2, 13, 2))
sketch2.addConstraint(Sketcher.Constraint("Vertical", 27, 2, 35, 2))
sketch2.addConstraint(Sketcher.Constraint("Vertical", 19, 2, 43, 2))
sketch2.addConstraint(Sketcher.Constraint("Equal", 22, 24))
sketch2.addConstraint(Sketcher.Constraint("Equal", 21, 25))
sketch2.addConstraint(Sketcher.Constraint("Equal", 20, 26))
sketch2.addConstraint(Sketcher.Constraint("Equal", 19, 27))
sketch2.addConstraint(Sketcher.Constraint("Equal", 18, 28))
sketch2.addConstraint(Sketcher.Constraint("Equal", 17, 29))
sketch2.addConstraint(Sketcher.Constraint("Equal", 23, 31))
sketch2.addConstraint(Sketcher.Constraint("Equal", 30, 32))
sketch2.addConstraint(Sketcher.Constraint("Equal", 29, 33))
sketch2.addConstraint(Sketcher.Constraint("Equal", 28, 34))
sketch2.addConstraint(Sketcher.Constraint("Equal", 27, 35))
sketch2.addConstraint(Sketcher.Constraint("Equal", 26, 36))
sketch2.addConstraint(Sketcher.Constraint("Equal", 25, 37))
sketch2.addConstraint(Sketcher.Constraint("Equal", 24, 38))
sketch2.addConstraint(Sketcher.Constraint("Equal", 31, 39))
sketch2.addConstraint(Sketcher.Constraint("Equal", 38, 40))
sketch2.addConstraint(Sketcher.Constraint("Equal", 37, 41))
sketch2.addConstraint(Sketcher.Constraint("Equal", 36, 42))
sketch2.addConstraint(Sketcher.Constraint("Equal", 35, 43))
sketch2.addConstraint(Sketcher.Constraint("Equal", 34, 44))
sketch2.addConstraint(Sketcher.Constraint("Equal", 33, 45))
sketch2.addConstraint(Sketcher.Constraint("DistanceX", 0, 2, 0, 1, 9.0))
sketch2.addConstraint(Sketcher.Constraint("DistanceX", 6, 2, 6, 1, 2.0))
sketch2.addConstraint(Sketcher.Constraint("Angle", 16, Q("60 deg")))
sketch2.addConstraint(Sketcher.Constraint("Distance", 16, 9.0))
sketch2.addConstraint(Sketcher.Constraint("Distance", 22, 2.0))
sketch2.addConstraint(Sketcher.Constraint("DistanceX", 2, 2, 2, 1, 0.5))
sketch2.addConstraint(Sketcher.Constraint("DistanceX", 4, 2, 4, 1, 2.5))
sketch2.addConstraint(Sketcher.Constraint("Distance", 18, 0.5))
sketch2.addConstraint(Sketcher.Constraint("Distance", 20, 2.5))
sketch2.addConstraint(Sketcher.Constraint("DistanceY", 1, 1, 1, 2, 2.02))
sketch2.addConstraint(Sketcher.Constraint("DistanceY", 3, 2, 3, 1, 0.75))
sketch2.addConstraint(Sketcher.Constraint("DistanceY", 7, 2, 7, 1, 2.96))
sketch2.addConstraint(Sketcher.Constraint("Distance", 17, 2.02))
sketch2.addConstraint(Sketcher.Constraint("Distance", 19, 0.75))
sketch2.addConstraint(Sketcher.Constraint("Distance", 23, 2.96))
sketch2.addConstraint(Sketcher.Constraint("DistanceX", 16, 2, 7, 2, 112.472602))
sketch2.addConstraint(Sketcher.Constraint("DistanceY", 25, 2, 32, 2, 132.7876))
sketch2.addConstraint(Sketcher.Constraint("DistanceX", 16, 2, -1, 1, 38.736068))
sketch2.addConstraint(Sketcher.Constraint("DistanceY", 16, 2, -1, 1, 70.052838))
pocket1 = body.newObject("PartDesign::Pocket", "Pocket")
pocket1.Profile = sketch2
pocket1.Type = "ThroughAll"

# Sketch on XY plane
sketch3 = body.newObject("Sketcher::SketchObject", "Sketch002")
sketch3.AttachmentSupport = (doc.getObject("XY_Plane"), [""])
sketch3.MapMode = "FlatFace"
sketch3.AttachmentOffset = App.Placement(Vector(0, 0, 5), App.Rotation())
sketch3.addGeometry(Part.Circle(Vector(-81.7, -49.5, 0), Vector(0, 0, 1), 1.5), False)
sketch3.addGeometry(Part.Circle(Vector(-2, -95.5, 0), Vector(0, 0, 1), 1.5), False)
sketch3.addGeometry(Part.Circle(Vector(55.5, 4.1, 0), Vector(0, 0, 1), 1.5), False)
sketch3.addGeometry(Part.Circle(Vector(-24.2, 50.1, 0), Vector(0, 0, 1), 1.5), False)
sketch3.addGeometry(Part.LineSegment(Vector(-112.8, -37.3, 0), Vector(-100.7, -44.3, 0)), False)
sketch3.addGeometry(Part.ArcOfCircle(Part.Circle(Vector(-100.2, -43.5, 0), Vector(0, 0, 1), 1), math.radians(-120), math.radians(-30)), False)
sketch3.addGeometry(Part.LineSegment(Vector(-99.3, -44, 0), Vector(-93.8, -34.4, 0)), False)
sketch3.addGeometry(Part.ArcOfCircle(Part.Circle(Vector(-94.7, -33.9, 0), Vector(0, 0, 1), 1), math.radians(-30), math.radians(60)), False)
sketch3.addGeometry(Part.LineSegment(Vector(-94.2, -33.1, 0), Vector(-106.3, -26.1, 0)), False)
sketch3.addGeometry(Part.ArcOfCircle(Part.Circle(Vector(-106.8, -26.9, 0), Vector(0, 0, 1), 1), math.radians(60), math.radians(150)), False)
sketch3.addGeometry(Part.LineSegment(Vector(-107.7, -26.4, 0), Vector(-113.2, -36, 0)), False)
sketch3.addGeometry(Part.ArcOfCircle(Part.Circle(Vector(-112.3, -36.5, 0), Vector(0, 0, 1), 1), math.radians(150), math.radians(240)), False)
sketch3.addGeometry(Part.LineSegment(Vector(25.4, -116, 0), Vector(30.9, -106.5, 0)), False)
sketch3.addGeometry(Part.ArcOfCircle(Part.Circle(Vector(30.1, -106, 0), Vector(0, 0, 1), 1), math.radians(-30), math.radians(60)), False)
sketch3.addGeometry(Part.LineSegment(Vector(30.6, -105.1, 0), Vector(18.4, -98.1, 0)), False)
sketch3.addGeometry(Part.ArcOfCircle(Part.Circle(Vector(17.9, -99, 0), Vector(0, 0, 1), 1), math.radians(60), math.radians(150)), False)
sketch3.addGeometry(Part.LineSegment(Vector(17.1, -98.5, 0), Vector(11.6, -108, 0)), False)
sketch3.addGeometry(Part.ArcOfCircle(Part.Circle(Vector(12.4, -108.5, 0), Vector(0, 0, 1), 1), math.radians(150), math.radians(240)), False)
sketch3.addGeometry(Part.LineSegment(Vector(11.9, -109.4, 0), Vector(24.1, -116.4, 0)), False)
sketch3.addGeometry(Part.ArcOfCircle(Part.Circle(Vector(24.6, -115.5, 0), Vector(0, 0, 1), 1), math.radians(-120), math.radians(-30)), False)
sketch3.addConstraint(Sketcher.Constraint("Tangent", 4, 2, 5, 1))
sketch3.addConstraint(Sketcher.Constraint("Tangent", 5, 2, 6, 1))
sketch3.addConstraint(Sketcher.Constraint("Tangent", 6, 2, 7, 1))
sketch3.addConstraint(Sketcher.Constraint("Tangent", 7, 2, 8, 1))
sketch3.addConstraint(Sketcher.Constraint("Tangent", 8, 2, 9, 1))
sketch3.addConstraint(Sketcher.Constraint("Tangent", 9, 2, 10, 1))
sketch3.addConstraint(Sketcher.Constraint("Tangent", 10, 2, 11, 1))
sketch3.addConstraint(Sketcher.Constraint("Tangent", 11, 2, 4, 1))
sketch3.addConstraint(Sketcher.Constraint("Tangent", 12, 2, 13, 1))
sketch3.addConstraint(Sketcher.Constraint("Tangent", 13, 2, 14, 1))
sketch3.addConstraint(Sketcher.Constraint("Tangent", 14, 2, 15, 1))
sketch3.addConstraint(Sketcher.Constraint("Tangent", 15, 2, 16, 1))
sketch3.addConstraint(Sketcher.Constraint("Tangent", 16, 2, 17, 1))
sketch3.addConstraint(Sketcher.Constraint("Tangent", 17, 2, 18, 1))
sketch3.addConstraint(Sketcher.Constraint("Tangent", 18, 2, 19, 1))
sketch3.addConstraint(Sketcher.Constraint("Tangent", 19, 2, 12, 1))
sketch3.addConstraint(Sketcher.Constraint("Equal", 0, 1))
sketch3.addConstraint(Sketcher.Constraint("Equal", 1, 2))
sketch3.addConstraint(Sketcher.Constraint("Equal", 2, 3))
sketch3.addConstraint(Sketcher.Constraint("Equal", 5, 7))
sketch3.addConstraint(Sketcher.Constraint("Equal", 7, 9))
sketch3.addConstraint(Sketcher.Constraint("Equal", 9, 11))
sketch3.addConstraint(Sketcher.Constraint("Equal", 11, 13))
sketch3.addConstraint(Sketcher.Constraint("Equal", 13, 15))
sketch3.addConstraint(Sketcher.Constraint("Equal", 15, 17))
sketch3.addConstraint(Sketcher.Constraint("Equal", 17, 19))
sketch3.addConstraint(Sketcher.Constraint("Perpendicular", 4, 6))
sketch3.addConstraint(Sketcher.Constraint("Perpendicular", 6, 8))
sketch3.addConstraint(Sketcher.Constraint("Perpendicular", 8, 10))
sketch3.addConstraint(Sketcher.Constraint("Parallel", 10, 12))
sketch3.addConstraint(Sketcher.Constraint("Perpendicular", 12, 14))
sketch3.addConstraint(Sketcher.Constraint("Perpendicular", 14, 16))
sketch3.addConstraint(Sketcher.Constraint("Perpendicular", 16, 18))
sketch3.addConstraint(Sketcher.Constraint("Equal", 10, 12))
sketch3.addConstraint(Sketcher.Constraint("Equal", 8, 14))
sketch3.addConstraint(Sketcher.Constraint("Diameter", 0, 3.0))
sketch3.addConstraint(Sketcher.Constraint("Radius", 5, 1.0))
sketch3.addConstraint(Sketcher.Constraint("Angle", 4, Q("-30.000006 deg")))
sketch3.addConstraint(Sketcher.Constraint("Distance", 4, 14.0))
sketch3.addConstraint(Sketcher.Constraint("Distance", 6, 11.0))
sketch3.addConstraint(Sketcher.Constraint("DistanceX", 1, 3, -1, 1, 2.031101))
sketch3.addConstraint(Sketcher.Constraint("DistanceY", 0, 3, -1, 1, 49.517948))
sketch3.addConstraint(Sketcher.Constraint("DistanceX", -1, 1, 2, 3, 55.46891))
sketch3.addConstraint(Sketcher.Constraint("DistanceX", 3, 3, -1, 1, 24.205422))
sketch3.addConstraint(Sketcher.Constraint("DistanceY", 5, 3, -1, 1, 43.471489))
sketch3.addConstraint(Sketcher.Constraint("DistanceX", 9, 3, -1, 1, 106.802558))
sketch3.addConstraint(Sketcher.Constraint("DistanceX", -1, 1, 17, 3, 12.441689))
sketch3.addConstraint(Sketcher.Constraint("DistanceY", 14, 2, -1, 1, 98.100309))
sketch3.addConstraint(Sketcher.Constraint("DistanceY", 1, 3, 0, 3, 46.000009))
sketch3.addConstraint(Sketcher.Constraint("DistanceY", 2, 3, 3, 3, 46.000009))
sketch3.addConstraint(Sketcher.Constraint("DistanceX", 0, 3, 3, 3, 57.500011))
sketch3.addConstraint(Sketcher.Constraint("DistanceY", 13, 3, 2, 3, 110.041291))
pocket2 = body.newObject("PartDesign::Pocket", "Pocket001")
pocket2.Profile = sketch3
pocket2.Type = "ThroughAll"

# Sketch on XY plane
sketch4 = body.newObject("Sketcher::SketchObject", "Sketch003")
sketch4.AttachmentSupport = (doc.getObject("XY_Plane"), [""])
sketch4.MapMode = "FlatFace"
sketch4.AttachmentOffset = App.Placement(Vector(0, 0, 5), App.Rotation())
sketch4.addGeometry(Part.ArcOfCircle(Part.Circle(Vector(0, 0, 0), Vector(0, 0, 1), 89), math.radians(150), math.radians(165)), False)
sketch4.addGeometry(Part.ArcOfCircle(Part.Circle(Vector(-84, 22.5, 0), Vector(0, 0, 1), 2), math.radians(165), math.radians(345)), False)
sketch4.addGeometry(Part.ArcOfCircle(Part.Circle(Vector(0, 0, 0), Vector(0, 0, 1), 85), math.radians(150), math.radians(165)), False)
sketch4.addGeometry(Part.ArcOfCircle(Part.Circle(Vector(-75.3, 43.5, 0), Vector(0, 0, 1), 2), math.radians(-30), math.radians(150)), False)
sketch4.addGeometry(Part.ArcOfCircle(Part.Circle(Vector(-75.3, -43.5, 0), Vector(0, 0, 1), 2), math.radians(-150), math.radians(30)), False)
sketch4.addGeometry(Part.ArcOfCircle(Part.Circle(Vector(0, 0, 0), Vector(0, 0, 1), 85), math.radians(-165), math.radians(-150)), False)
sketch4.addGeometry(Part.ArcOfCircle(Part.Circle(Vector(-84, -22.5, 0), Vector(0, 0, 1), 2), math.radians(15), math.radians(195)), False)
sketch4.addGeometry(Part.ArcOfCircle(Part.Circle(Vector(0, 0, 0), Vector(0, 0, 1), 89), math.radians(-165), math.radians(-150)), False)
sketch4.addConstraint(Sketcher.Constraint("Tangent", 0, 2, 1, 1))
sketch4.addConstraint(Sketcher.Constraint("Tangent", 1, 2, 2, 2))
sketch4.addConstraint(Sketcher.Constraint("Tangent", 2, 1, 3, 1))
sketch4.addConstraint(Sketcher.Constraint("Tangent", 3, 2, 0, 1))
sketch4.addConstraint(Sketcher.Constraint("Tangent", 4, 2, 5, 2))
sketch4.addConstraint(Sketcher.Constraint("Tangent", 5, 1, 6, 1))
sketch4.addConstraint(Sketcher.Constraint("Tangent", 6, 2, 7, 1))
sketch4.addConstraint(Sketcher.Constraint("Tangent", 7, 2, 4, 1))
sketch4.addConstraint(Sketcher.Constraint("Coincident", 0, 3, -1, 1))
sketch4.addConstraint(Sketcher.Constraint("Coincident", 2, 3, -1, 1))
sketch4.addConstraint(Sketcher.Constraint("Coincident", 5, 3, -1, 1))
sketch4.addConstraint(Sketcher.Constraint("Coincident", 7, 3, -1, 1))
sketch4.addConstraint(Sketcher.Constraint("Equal", 3, 4))
sketch4.addConstraint(Sketcher.Constraint("Equal", 2, 5))
sketch4.addConstraint(Sketcher.Constraint("Vertical", 3, 3, 4, 3))
sketch4.addConstraint(Sketcher.Constraint("Vertical", 1, 3, 6, 3))
sketch4.addConstraint(Sketcher.Constraint("Radius", 0, 89.0))
sketch4.addConstraint(Sketcher.Constraint("Radius", 1, 2.0))
sketch4.addConstraint(Sketcher.Constraint("DistanceY", 4, 3, 3, 3, 87.0))
sketch4.addConstraint(Sketcher.Constraint("DistanceX", 0, 2, -1, 1, 85.967399))
pocket3 = body.newObject("PartDesign::Pocket", "Pocket002")
pocket3.Profile = sketch4
pocket3.Type = "ThroughAll"
doc.recompute()

polarpattern = body.newObject("PartDesign::PolarPattern", "PolarPattern")
polarpattern.Originals = [pocket3]
polarpattern.Axis = (doc.getObject("Z_Axis"), [""])
polarpattern.Angle = 360
polarpattern.Occurrences = 3
body.Tip = polarpattern

doc.recompute()
